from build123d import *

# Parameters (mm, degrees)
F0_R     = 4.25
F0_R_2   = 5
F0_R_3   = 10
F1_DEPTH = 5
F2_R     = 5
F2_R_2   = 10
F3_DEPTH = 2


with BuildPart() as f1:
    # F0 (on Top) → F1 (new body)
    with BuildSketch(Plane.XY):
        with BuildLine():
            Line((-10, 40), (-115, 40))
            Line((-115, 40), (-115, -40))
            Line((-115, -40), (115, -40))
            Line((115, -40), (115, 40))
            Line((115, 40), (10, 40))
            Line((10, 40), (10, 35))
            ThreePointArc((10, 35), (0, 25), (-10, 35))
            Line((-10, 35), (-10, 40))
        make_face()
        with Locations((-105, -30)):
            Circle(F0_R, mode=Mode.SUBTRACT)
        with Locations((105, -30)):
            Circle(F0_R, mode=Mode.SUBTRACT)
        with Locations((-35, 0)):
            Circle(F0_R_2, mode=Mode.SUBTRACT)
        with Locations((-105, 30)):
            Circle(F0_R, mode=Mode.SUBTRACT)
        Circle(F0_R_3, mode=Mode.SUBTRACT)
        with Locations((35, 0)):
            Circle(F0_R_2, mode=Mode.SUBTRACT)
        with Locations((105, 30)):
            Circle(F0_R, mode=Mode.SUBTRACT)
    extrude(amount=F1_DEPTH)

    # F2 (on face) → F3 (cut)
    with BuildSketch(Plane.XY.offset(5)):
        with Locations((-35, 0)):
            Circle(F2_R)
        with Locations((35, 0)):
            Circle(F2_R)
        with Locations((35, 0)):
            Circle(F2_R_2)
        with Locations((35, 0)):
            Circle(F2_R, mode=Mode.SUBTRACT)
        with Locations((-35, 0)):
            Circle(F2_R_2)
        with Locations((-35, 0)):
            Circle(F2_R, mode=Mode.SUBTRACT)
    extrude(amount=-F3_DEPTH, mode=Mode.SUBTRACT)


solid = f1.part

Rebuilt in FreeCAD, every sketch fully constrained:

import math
import FreeCAD as App
import Part
import Sketcher
from FreeCAD import Vector
Q = App.Units.Quantity

doc = App.newDocument("Part")
body = doc.addObject("PartDesign::Body", "Body")

sketch1 = body.newObject("Sketcher::SketchObject", "Sketch")
sketch1.AttachmentSupport = (doc.getObject("XY_Plane"), [""])
sketch1.MapMode = "FlatFace"
sketch1.addGeometry(Part.LineSegment(Vector(-10, 40, 0), Vector(-115, 40, 0)), False)
sketch1.addGeometry(Part.LineSegment(Vector(-115, 40, 0), Vector(-115, -40, 0)), False)
sketch1.addGeometry(Part.LineSegment(Vector(-115, -40, 0), Vector(115, -40, 0)), False)
sketch1.addGeometry(Part.LineSegment(Vector(115, -40, 0), Vector(115, 40, 0)), False)
sketch1.addGeometry(Part.LineSegment(Vector(115, 40, 0), Vector(10, 40, 0)), False)
sketch1.addGeometry(Part.LineSegment(Vector(10, 40, 0), Vector(10, 35, 0)), False)
sketch1.addGeometry(Part.ArcOfCircle(Part.Circle(Vector(0, 35, 0), Vector(0, 0, 1), 10), math.radians(180), math.radians(360)), False)
sketch1.addGeometry(Part.LineSegment(Vector(-10, 35, 0), Vector(-10, 40, 0)), False)
sketch1.addGeometry(Part.Circle(Vector(-105, -30, 0), Vector(0, 0, 1), 4.25), False)
sketch1.addGeometry(Part.Circle(Vector(105, -30, 0), Vector(0, 0, 1), 4.25), False)
sketch1.addGeometry(Part.Circle(Vector(-35, 0, 0), Vector(0, 0, 1), 5), False)
sketch1.addGeometry(Part.Circle(Vector(-105, 30, 0), Vector(0, 0, 1), 4.25), False)
sketch1.addGeometry(Part.Circle(Vector(0, 0, 0), Vector(0, 0, 1), 10), False)
sketch1.addGeometry(Part.Circle(Vector(35, 0, 0), Vector(0, 0, 1), 5), False)
sketch1.addGeometry(Part.Circle(Vector(105, 30, 0), Vector(0, 0, 1), 4.25), False)
sketch1.addConstraint(Sketcher.Constraint("Coincident", 0, 2, 1, 1))
sketch1.addConstraint(Sketcher.Constraint("Coincident", 1, 2, 2, 1))
sketch1.addConstraint(Sketcher.Constraint("Coincident", 2, 2, 3, 1))
sketch1.addConstraint(Sketcher.Constraint("Coincident", 3, 2, 4, 1))
sketch1.addConstraint(Sketcher.Constraint("Coincident", 4, 2, 5, 1))
sketch1.addConstraint(Sketcher.Constraint("Tangent", 5, 2, 6, 2))
sketch1.addConstraint(Sketcher.Constraint("Tangent", 6, 1, 7, 1))
sketch1.addConstraint(Sketcher.Constraint("Coincident", 7, 2, 0, 1))
sketch1.addConstraint(Sketcher.Constraint("Horizontal", 0))
sketch1.addConstraint(Sketcher.Constraint("Vertical", 1))
sketch1.addConstraint(Sketcher.Constraint("Horizontal", 2))
sketch1.addConstraint(Sketcher.Constraint("Vertical", 3))
sketch1.addConstraint(Sketcher.Constraint("Horizontal", 4))
sketch1.addConstraint(Sketcher.Constraint("Vertical", 5))
sketch1.addConstraint(Sketcher.Constraint("Vertical", 7))
sketch1.addConstraint(Sketcher.Constraint("Coincident", 12, 3, -1, 1))
sketch1.addConstraint(Sketcher.Constraint("Equal", 8, 9))
sketch1.addConstraint(Sketcher.Constraint("Equal", 9, 11))
sketch1.addConstraint(Sketcher.Constraint("Equal", 6, 12))
sketch1.addConstraint(Sketcher.Constraint("Equal", 10, 13))
sketch1.addConstraint(Sketcher.Constraint("Equal", 11, 14))
sketch1.addConstraint(Sketcher.Constraint("Symmetric", 9, 3, 11, 3, -1, 1))
sketch1.addConstraint(Sketcher.Constraint("Symmetric", 10, 3, 13, 3, -1, 1))
sketch1.addConstraint(Sketcher.Constraint("Symmetric", 8, 3, 14, 3, -1, 1))
sketch1.addConstraint(Sketcher.Constraint("Symmetric", 0, 2, 2, 2, -1, 1))
sketch1.addConstraint(Sketcher.Constraint("Symmetric", 8, 3, 9, 3, -2))
sketch1.addConstraint(Sketcher.Constraint("Symmetric", 4, 2, 7, 2, -2))
sketch1.addConstraint(Sketcher.Constraint("PointOnObject", 10, 3, -1))
sketch1.addConstraint(Sketcher.Constraint("Diameter", 10, Q("10 mm")))
sketch1.addConstraint(Sketcher.Constraint("Diameter", 12, Q("20 mm")))
sketch1.addConstraint(Sketcher.Constraint("Diameter", 8, Q("8.5 mm")))
sketch1.addConstraint(Sketcher.Constraint("DistanceX", 0, 2, 0, 1, Q("105 mm")))
sketch1.addConstraint(Sketcher.Constraint("DistanceY", 1, 2, 1, 1, Q("80 mm")))
sketch1.addConstraint(Sketcher.Constraint("DistanceY", 5, 2, 5, 1, Q("5 mm")))
sketch1.addConstraint(Sketcher.Constraint("DistanceX", 8, 3, -1, 1, Q("105 mm")))
sketch1.addConstraint(Sketcher.Constraint("DistanceY", 8, 3, -1, 1, Q("30 mm")))
sketch1.addConstraint(Sketcher.Constraint("DistanceX", 10, 3, -1, 1, Q("35 mm")))
pad1 = body.newObject("PartDesign::Pad", "Pad")
pad1.Profile = sketch1
pad1.Length = 5

sketch2 = body.newObject("Sketcher::SketchObject", "Sketch001")
sketch2.AttachmentSupport = (doc.getObject("XY_Plane"), [""])
sketch2.MapMode = "FlatFace"
sketch2.AttachmentOffset = App.Placement(Vector(0, 0, 5), App.Rotation())
sketch2.addGeometry(Part.Circle(Vector(-35, 0, 0), Vector(0, 0, 1), 10), False)
sketch2.addGeometry(Part.Circle(Vector(-35, 0, 0), Vector(0, 0, 1), 5), False)
sketch2.addGeometry(Part.Circle(Vector(35, 0, 0), Vector(0, 0, 1), 10), False)
sketch2.addGeometry(Part.Circle(Vector(35, 0, 0), Vector(0, 0, 1), 5), False)
sketch2.addConstraint(Sketcher.Constraint("Coincident", 1, 3, 0, 3))
sketch2.addConstraint(Sketcher.Constraint("Coincident", 3, 3, 2, 3))
sketch2.addConstraint(Sketcher.Constraint("Equal", 0, 2))
sketch2.addConstraint(Sketcher.Constraint("Equal", 1, 3))
sketch2.addConstraint(Sketcher.Constraint("Symmetric", 0, 3, 2, 3, -1, 1))
sketch2.addConstraint(Sketcher.Constraint("PointOnObject", 0, 3, -1))
sketch2.addConstraint(Sketcher.Constraint("Diameter", 0, Q("20 mm")))
sketch2.addConstraint(Sketcher.Constraint("Diameter", 1, Q("10 mm")))
sketch2.addConstraint(Sketcher.Constraint("DistanceX", 0, 3, -1, 1, Q("35 mm")))
pocket1 = body.newObject("PartDesign::Pocket", "Pocket")
pocket1.Profile = sketch2
pocket1.Length = 2

doc.recompute()
